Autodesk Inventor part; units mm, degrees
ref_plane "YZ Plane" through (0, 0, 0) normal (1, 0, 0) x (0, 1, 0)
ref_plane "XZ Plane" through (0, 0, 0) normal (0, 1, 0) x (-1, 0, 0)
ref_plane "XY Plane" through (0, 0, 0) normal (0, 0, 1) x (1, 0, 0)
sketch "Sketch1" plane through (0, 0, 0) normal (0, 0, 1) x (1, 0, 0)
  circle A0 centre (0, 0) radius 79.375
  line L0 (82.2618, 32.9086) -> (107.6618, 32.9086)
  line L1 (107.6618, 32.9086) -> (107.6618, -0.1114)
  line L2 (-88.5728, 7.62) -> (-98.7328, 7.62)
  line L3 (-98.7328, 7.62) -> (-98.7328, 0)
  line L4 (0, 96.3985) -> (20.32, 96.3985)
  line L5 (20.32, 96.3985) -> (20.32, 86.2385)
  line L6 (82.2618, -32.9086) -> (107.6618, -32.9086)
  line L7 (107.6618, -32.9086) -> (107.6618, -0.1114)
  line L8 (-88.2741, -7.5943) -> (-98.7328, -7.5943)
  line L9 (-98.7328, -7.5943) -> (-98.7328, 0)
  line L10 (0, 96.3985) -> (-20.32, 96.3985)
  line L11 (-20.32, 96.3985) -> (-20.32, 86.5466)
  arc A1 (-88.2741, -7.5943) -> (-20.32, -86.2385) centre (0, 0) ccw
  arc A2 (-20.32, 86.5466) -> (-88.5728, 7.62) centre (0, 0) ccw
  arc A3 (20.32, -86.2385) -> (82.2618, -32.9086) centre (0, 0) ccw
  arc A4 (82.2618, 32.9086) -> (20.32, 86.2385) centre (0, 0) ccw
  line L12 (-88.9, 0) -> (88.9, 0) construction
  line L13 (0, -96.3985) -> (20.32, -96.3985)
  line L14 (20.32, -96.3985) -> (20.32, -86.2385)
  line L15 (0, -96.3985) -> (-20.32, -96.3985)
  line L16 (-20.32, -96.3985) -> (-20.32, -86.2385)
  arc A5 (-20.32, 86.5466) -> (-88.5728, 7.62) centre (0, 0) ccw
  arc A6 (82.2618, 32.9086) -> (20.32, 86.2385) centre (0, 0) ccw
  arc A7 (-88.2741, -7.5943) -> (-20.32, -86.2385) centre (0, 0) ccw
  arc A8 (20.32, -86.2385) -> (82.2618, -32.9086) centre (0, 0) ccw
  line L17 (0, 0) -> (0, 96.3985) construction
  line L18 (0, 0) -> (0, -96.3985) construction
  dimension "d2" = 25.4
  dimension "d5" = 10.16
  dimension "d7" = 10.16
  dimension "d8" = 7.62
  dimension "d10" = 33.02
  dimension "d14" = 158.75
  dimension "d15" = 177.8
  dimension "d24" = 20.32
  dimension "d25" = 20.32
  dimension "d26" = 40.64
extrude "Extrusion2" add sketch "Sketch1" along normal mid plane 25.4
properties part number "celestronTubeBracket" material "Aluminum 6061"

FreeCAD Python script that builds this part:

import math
import FreeCAD as App
import Part
import Sketcher
Q = App.Units.Quantity

doc = App.newDocument("Part")
params = doc.addObject("Spreadsheet::Sheet", "Params")
for row, (alias, value) in enumerate([
    ("sketch1_radius", "3.5 in"),
    ("sketch1_diameter", "6.25 in"),
    ("sketch1_width", "1 in"),
    ("sketch1_width2", "1.6 in"),
    ("sketch1_width3", "0.4 in"),
    ("pad1_length", "1 in"),
], start=1):
    params.set(f"A{row}", alias)
    params.set(f"B{row}", "=" + value)
    params.setAlias(f"B{row}", alias)

body = doc.addObject("PartDesign::Body", "Body")

# Sketch on XY plane
sketch1 = body.newObject("Sketcher::SketchObject", "Sketch")
sketch1.AttachmentSupport = (doc.getObject("XY_Plane"), [""])
sketch1.MapMode = "FlatFace"
sketch1.addGeometry([
    Part.LineSegment(App.Vector(108, 33, 0), App.Vector(82, 33, 0)),  # 0
    Part.ArcOfCircle(Part.Circle(App.Vector(0, 0, 0), App.Vector(0, 0, 1), 89), math.radians(22), math.radians(77)),  # 1
    Part.LineSegment(App.Vector(20, 86, 0), App.Vector(20, 96, 0)),  # 2
    Part.LineSegment(App.Vector(20, 96, 0), App.Vector(-20, 96, 0)),  # 3
    Part.LineSegment(App.Vector(-20, 96, 0), App.Vector(-20, 87, 0)),  # 4
    Part.ArcOfCircle(Part.Circle(App.Vector(0, 0, 0), App.Vector(0, 0, 1), 89), math.radians(103), math.radians(175)),  # 5
    Part.LineSegment(App.Vector(-89, 8, 0), App.Vector(-99, 8, 0)),  # 6
    Part.LineSegment(App.Vector(-99, 8, 0), App.Vector(-99, -8, 0)),  # 7
    Part.LineSegment(App.Vector(-99, -8, 0), App.Vector(-88, -8, 0)),  # 8
    Part.ArcOfCircle(Part.Circle(App.Vector(0, 0, 0), App.Vector(0, 0, 1), 89), math.radians(-175), math.radians(-103)),  # 9
    Part.LineSegment(App.Vector(-20, -86, 0), App.Vector(-20, -96, 0)),  # 10
    Part.LineSegment(App.Vector(-20, -96, 0), App.Vector(20, -96, 0)),  # 11
    Part.LineSegment(App.Vector(20, -96, 0), App.Vector(20, -86, 0)),  # 12
    Part.ArcOfCircle(Part.Circle(App.Vector(0, 0, 0), App.Vector(0, 0, 1), 89), math.radians(-77), math.radians(-22)),  # 13
    Part.LineSegment(App.Vector(82, -33, 0), App.Vector(108, -33, 0)),  # 14
    Part.LineSegment(App.Vector(108, -33, 0), App.Vector(108, 33, 0)),  # 15
    Part.Circle(App.Vector(0, 0, 0), App.Vector(0, 0, 1), 79),  # 16
], False)
sketch1.addConstraint([
    Sketcher.Constraint("Coincident", 0, 2, 1, 1),
    Sketcher.Constraint("Coincident", 1, 2, 2, 1),
    Sketcher.Constraint("Coincident", 2, 2, 3, 1),
    Sketcher.Constraint("Coincident", 3, 2, 4, 1),
    Sketcher.Constraint("Coincident", 4, 2, 5, 1),
    Sketcher.Constraint("Coincident", 5, 2, 6, 1),
    Sketcher.Constraint("Coincident", 6, 2, 7, 1),
    Sketcher.Constraint("Coincident", 7, 2, 8, 1),
    Sketcher.Constraint("Coincident", 8, 2, 9, 1),
    Sketcher.Constraint("Coincident", 9, 2, 10, 1),
    Sketcher.Constraint("Coincident", 10, 2, 11, 1),
    Sketcher.Constraint("Coincident", 11, 2, 12, 1),
    Sketcher.Constraint("Coincident", 12, 2, 13, 1),
    Sketcher.Constraint("Coincident", 13, 2, 14, 1),
    Sketcher.Constraint("Coincident", 14, 2, 15, 1),
    Sketcher.Constraint("Coincident", 15, 2, 0, 1),
    Sketcher.Constraint("Horizontal", 0),
    Sketcher.Constraint("Vertical", 2),
    Sketcher.Constraint("Horizontal", 3),
    Sketcher.Constraint("Vertical", 4),
    Sketcher.Constraint("Horizontal", 6),
    Sketcher.Constraint("Vertical", 7),
    Sketcher.Constraint("Horizontal", 8),
    Sketcher.Constraint("Vertical", 10),
    Sketcher.Constraint("Horizontal", 11),
    Sketcher.Constraint("Vertical", 12),
    Sketcher.Constraint("Horizontal", 14),
    Sketcher.Constraint("Vertical", 15),
    Sketcher.Constraint("Coincident", 1, 3, -1, 1),
    Sketcher.Constraint("Coincident", 5, 3, -1, 1),
    Sketcher.Constraint("Coincident", 9, 3, -1, 1),
    Sketcher.Constraint("Coincident", 13, 3, -1, 1),
    Sketcher.Constraint("Coincident", 16, 3, -1, 1),
    Sketcher.Constraint("Equal", 1, 9),
    Sketcher.Constraint("Equal", 9, 13),
    Sketcher.Constraint("Symmetric", 2, 2, 10, 2, -1, 1),
    Sketcher.Constraint("Horizontal", 9, 2, 12, 2),
    Sketcher.Constraint("Vertical", 4, 2, 9, 2),
    Sketcher.Constraint("Vertical", 0, 2, 13, 2),
    Sketcher.Constraint("Equal", 6, 2),
    Sketcher.Constraint("Radius", 5, Q("3.5 in")),
    Sketcher.Constraint("Diameter", 16, Q("6.25 in")),
    Sketcher.Constraint("DistanceX", 0, 2, 0, 1, Q("1 in")),
    Sketcher.Constraint("DistanceX", 3, 2, 3, 1, Q("1.6 in")),
    Sketcher.Constraint("DistanceX", 6, 2, 6, 1, Q("0.4 in")),
    Sketcher.Constraint("DistanceY", -1, 1, 5, 2, Q("0.3 in")),
    Sketcher.Constraint("Radius", 1, Q("3.4882 in")),
    Sketcher.Constraint("DistanceY", 7, 2, 7, 1, Q("0.599 in")),
    Sketcher.Constraint("DistanceY", 15, 1, 15, 2, Q("65.8172 mm")),
])
sketch1.setExpression("Constraints[40]", "Params.sketch1_radius")
sketch1.setExpression("Constraints[41]", "Params.sketch1_diameter")
sketch1.setExpression("Constraints[42]", "Params.sketch1_width")
sketch1.setExpression("Constraints[43]", "Params.sketch1_width2")
sketch1.setExpression("Constraints[44]", "Params.sketch1_width3")
pad1 = body.newObject("PartDesign::Pad", "Pad")
pad1.Profile = sketch1
pad1.setExpression("Length", "Params.pad1_length")
pad1.Midplane = True

doc.recompute()
